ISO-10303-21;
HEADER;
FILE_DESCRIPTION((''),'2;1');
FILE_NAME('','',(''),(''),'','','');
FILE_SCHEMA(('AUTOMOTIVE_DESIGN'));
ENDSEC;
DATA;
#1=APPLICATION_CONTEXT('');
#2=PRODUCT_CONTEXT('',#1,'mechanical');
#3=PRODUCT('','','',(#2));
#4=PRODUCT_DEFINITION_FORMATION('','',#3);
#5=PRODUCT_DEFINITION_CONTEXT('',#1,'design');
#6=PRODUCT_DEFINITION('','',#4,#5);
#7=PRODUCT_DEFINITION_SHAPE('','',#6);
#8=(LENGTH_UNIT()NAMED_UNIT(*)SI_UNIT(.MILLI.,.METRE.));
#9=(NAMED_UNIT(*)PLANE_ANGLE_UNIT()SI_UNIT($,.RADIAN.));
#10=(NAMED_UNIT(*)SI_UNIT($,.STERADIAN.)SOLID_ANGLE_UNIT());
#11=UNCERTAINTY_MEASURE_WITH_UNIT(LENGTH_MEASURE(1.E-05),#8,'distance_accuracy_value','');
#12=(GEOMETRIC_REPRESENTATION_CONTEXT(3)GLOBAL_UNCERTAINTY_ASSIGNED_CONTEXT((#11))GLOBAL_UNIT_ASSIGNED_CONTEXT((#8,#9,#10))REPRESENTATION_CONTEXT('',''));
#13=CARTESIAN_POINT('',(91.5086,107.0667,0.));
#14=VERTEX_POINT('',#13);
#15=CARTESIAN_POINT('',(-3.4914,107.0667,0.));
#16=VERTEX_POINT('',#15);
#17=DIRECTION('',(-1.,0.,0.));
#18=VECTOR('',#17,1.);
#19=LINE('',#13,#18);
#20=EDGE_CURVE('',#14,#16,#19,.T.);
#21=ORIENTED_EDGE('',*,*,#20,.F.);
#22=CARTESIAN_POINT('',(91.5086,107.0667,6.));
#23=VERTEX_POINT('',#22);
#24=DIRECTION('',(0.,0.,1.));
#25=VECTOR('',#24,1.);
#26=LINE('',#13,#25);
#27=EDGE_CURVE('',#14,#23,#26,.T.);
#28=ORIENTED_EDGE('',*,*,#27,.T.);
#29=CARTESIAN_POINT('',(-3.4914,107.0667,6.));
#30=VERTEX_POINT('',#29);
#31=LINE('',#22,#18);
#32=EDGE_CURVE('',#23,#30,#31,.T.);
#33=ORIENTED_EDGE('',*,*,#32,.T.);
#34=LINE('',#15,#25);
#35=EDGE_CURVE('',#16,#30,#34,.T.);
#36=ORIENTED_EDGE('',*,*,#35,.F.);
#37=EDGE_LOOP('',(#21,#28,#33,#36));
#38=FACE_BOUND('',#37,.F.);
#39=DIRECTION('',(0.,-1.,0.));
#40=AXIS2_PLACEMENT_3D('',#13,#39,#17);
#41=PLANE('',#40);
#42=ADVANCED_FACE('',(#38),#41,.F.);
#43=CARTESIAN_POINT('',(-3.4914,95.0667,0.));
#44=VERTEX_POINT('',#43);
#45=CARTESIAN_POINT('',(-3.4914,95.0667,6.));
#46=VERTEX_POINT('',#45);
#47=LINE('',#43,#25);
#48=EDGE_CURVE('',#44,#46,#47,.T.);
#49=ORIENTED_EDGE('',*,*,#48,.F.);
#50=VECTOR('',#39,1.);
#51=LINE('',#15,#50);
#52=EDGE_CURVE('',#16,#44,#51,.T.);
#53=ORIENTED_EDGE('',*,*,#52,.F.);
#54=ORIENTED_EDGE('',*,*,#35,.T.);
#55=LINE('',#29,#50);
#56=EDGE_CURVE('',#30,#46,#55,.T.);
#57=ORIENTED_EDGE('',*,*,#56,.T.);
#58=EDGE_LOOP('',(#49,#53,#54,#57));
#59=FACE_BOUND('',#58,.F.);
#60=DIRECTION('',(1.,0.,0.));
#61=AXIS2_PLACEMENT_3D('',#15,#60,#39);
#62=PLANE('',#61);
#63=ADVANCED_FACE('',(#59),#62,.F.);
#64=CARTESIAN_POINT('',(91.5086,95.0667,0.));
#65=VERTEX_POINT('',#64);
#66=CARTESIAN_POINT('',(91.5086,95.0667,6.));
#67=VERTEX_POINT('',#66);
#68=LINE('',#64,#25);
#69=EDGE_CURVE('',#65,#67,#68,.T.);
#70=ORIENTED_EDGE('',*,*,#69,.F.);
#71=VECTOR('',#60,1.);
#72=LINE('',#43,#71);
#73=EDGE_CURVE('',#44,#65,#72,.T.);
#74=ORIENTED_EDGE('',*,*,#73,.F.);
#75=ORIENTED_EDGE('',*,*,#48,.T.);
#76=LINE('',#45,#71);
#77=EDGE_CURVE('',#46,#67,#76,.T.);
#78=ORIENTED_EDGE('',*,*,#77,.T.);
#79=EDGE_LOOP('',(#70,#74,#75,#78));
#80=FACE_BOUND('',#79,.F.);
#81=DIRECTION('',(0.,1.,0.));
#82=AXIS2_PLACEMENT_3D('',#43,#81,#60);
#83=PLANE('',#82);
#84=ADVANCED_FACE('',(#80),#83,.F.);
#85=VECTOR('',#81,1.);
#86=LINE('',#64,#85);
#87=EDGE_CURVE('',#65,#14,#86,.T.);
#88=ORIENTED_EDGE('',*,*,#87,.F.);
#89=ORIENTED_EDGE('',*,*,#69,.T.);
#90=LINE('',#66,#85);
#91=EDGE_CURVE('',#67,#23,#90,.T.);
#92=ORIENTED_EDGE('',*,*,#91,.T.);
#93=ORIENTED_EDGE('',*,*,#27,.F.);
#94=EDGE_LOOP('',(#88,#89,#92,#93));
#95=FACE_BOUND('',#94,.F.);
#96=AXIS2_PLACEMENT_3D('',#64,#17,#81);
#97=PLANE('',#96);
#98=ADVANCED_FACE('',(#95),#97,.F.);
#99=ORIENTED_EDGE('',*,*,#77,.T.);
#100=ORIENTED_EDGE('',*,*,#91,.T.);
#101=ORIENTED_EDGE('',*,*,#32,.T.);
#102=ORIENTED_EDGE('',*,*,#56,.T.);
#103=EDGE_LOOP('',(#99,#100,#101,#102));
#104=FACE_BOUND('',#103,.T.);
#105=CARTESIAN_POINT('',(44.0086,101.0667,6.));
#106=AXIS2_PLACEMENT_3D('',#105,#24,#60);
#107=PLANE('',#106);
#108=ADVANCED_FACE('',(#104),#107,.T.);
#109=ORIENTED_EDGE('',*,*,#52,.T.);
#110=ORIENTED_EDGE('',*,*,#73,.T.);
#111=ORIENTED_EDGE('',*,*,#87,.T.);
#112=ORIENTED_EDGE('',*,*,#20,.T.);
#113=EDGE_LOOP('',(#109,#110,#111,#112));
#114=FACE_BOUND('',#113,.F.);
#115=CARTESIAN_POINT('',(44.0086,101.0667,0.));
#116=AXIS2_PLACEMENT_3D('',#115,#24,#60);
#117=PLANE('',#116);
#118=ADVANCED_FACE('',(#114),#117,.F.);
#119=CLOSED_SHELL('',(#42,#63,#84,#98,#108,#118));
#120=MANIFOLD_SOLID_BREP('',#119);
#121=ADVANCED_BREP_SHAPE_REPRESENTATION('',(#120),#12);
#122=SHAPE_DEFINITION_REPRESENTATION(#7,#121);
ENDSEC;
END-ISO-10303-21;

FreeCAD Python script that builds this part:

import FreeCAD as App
import Part
import Sketcher

V = App.Vector

doc = App.newDocument("Part")
body = doc.addObject("PartDesign::Body", "Body")

sketch1 = body.newObject("Sketcher::SketchObject", "Sketch")
sketch1.AttachmentSupport = (doc.getObject("XY_Plane"), [""])
sketch1.MapMode = "FlatFace"
sketch1.addGeometry([
    Part.LineSegment(V(-3, 107, 0), V(-3, 95, 0)),
    Part.LineSegment(V(-3, 95, 0), V(92, 95, 0)),
    Part.LineSegment(V(92, 95, 0), V(92, 107, 0)),
    Part.LineSegment(V(92, 107, 0), V(-3, 107, 0)),
], False)
sketch1.addConstraint([
    Sketcher.Constraint("Coincident", 0, 2, 1, 1),
    Sketcher.Constraint("Coincident", 1, 2, 2, 1),
    Sketcher.Constraint("Coincident", 2, 2, 3, 1),
    Sketcher.Constraint("Coincident", 3, 2, 0, 1),
    Sketcher.Constraint("Vertical", 0),
    Sketcher.Constraint("Horizontal", 1),
    Sketcher.Constraint("Vertical", 2),
    Sketcher.Constraint("Horizontal", 3),
    Sketcher.Constraint("DistanceX", 1, 1, 1, 2, 95.0),
    Sketcher.Constraint("DistanceY", 0, 2, 0, 1, 12.0),
    Sketcher.Constraint("DistanceX", -1, 1, 1, 2, 91.5086),
    Sketcher.Constraint("DistanceY", -1, 1, 0, 2, 95.0667),
])
pad1 = body.newObject("PartDesign::Pad", "Pad")
pad1.Profile = sketch1
pad1.Length = 6

doc.recompute()
